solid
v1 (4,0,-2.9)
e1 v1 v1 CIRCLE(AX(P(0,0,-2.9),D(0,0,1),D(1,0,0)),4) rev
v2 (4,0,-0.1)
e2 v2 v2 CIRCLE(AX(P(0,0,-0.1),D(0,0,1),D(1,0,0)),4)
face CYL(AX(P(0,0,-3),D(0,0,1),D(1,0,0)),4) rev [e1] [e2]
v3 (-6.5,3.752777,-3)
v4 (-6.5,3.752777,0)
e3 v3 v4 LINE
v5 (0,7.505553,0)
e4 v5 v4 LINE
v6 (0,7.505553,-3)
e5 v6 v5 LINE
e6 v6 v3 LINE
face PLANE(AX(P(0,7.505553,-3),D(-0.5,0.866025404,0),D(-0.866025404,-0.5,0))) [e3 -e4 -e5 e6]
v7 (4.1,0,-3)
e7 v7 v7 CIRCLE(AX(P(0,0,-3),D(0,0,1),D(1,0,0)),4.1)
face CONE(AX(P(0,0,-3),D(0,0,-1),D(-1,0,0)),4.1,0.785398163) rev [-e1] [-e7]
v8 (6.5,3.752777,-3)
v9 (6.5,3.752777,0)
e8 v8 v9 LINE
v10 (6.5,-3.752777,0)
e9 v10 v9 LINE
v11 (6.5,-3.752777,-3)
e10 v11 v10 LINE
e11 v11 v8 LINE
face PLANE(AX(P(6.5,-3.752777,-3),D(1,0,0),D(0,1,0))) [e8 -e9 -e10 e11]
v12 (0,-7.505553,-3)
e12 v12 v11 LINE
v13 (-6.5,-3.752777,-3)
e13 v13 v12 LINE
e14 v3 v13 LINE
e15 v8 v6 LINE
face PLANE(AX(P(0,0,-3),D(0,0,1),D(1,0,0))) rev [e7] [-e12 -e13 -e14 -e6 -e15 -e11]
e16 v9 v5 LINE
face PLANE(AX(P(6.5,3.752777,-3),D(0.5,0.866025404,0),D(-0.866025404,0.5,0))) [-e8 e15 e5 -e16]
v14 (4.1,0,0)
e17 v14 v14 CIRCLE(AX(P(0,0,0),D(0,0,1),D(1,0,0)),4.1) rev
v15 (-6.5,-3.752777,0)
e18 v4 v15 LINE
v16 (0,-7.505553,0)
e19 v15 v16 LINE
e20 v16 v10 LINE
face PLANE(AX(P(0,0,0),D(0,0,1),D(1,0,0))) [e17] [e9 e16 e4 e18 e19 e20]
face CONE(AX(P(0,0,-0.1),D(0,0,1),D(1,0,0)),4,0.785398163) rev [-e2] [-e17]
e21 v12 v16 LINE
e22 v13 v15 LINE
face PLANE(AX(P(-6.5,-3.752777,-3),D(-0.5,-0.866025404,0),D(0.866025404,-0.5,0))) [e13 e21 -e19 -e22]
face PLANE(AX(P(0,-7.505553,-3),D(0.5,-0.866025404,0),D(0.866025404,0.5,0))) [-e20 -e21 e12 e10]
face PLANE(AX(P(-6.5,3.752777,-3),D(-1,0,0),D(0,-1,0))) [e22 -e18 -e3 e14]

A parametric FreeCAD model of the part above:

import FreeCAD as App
import Part
import Sketcher

V = App.Vector
Q = App.Units.Quantity


def edges_at(feature, points):
    """Names of the edges that pass closest to the given points."""
    edges = feature.Shape.Edges
    near = lambda p: min(range(len(edges)), key=lambda i: edges[i].distToShape(Part.Vertex(*p))[0])
    return sorted({f"Edge{near(p) + 1}" for p in points})


def add_polygon(sketch, points):
    """Adds a closed chain of lines whose ends are joined by coincident constraints."""
    first, n = sketch.GeometryCount, len(points)
    for a, b in zip(points, points[1:] + points[:1]):
        sketch.addGeometry(Part.LineSegment(App.Vector(*a, 0), App.Vector(*b, 0)), False)
    for i in range(n):
        sketch.addConstraint(Sketcher.Constraint("Coincident", first + i, 2, first + (i + 1) % n, 1))

doc = App.newDocument("Part")
body = doc.addObject("PartDesign::Body", "Body")

# Sketch on XY plane
sketch1 = body.newObject("Sketcher::SketchObject", "Sketch")
sketch1.AttachmentSupport = (doc.getObject("XY_Plane"), [""])
sketch1.MapMode = "FlatFace"
add_polygon(sketch1, [(0, 7.505553), (-6.5, 3.752777), (-6.5, -3.752777), (0, -7.505553), (6.5, -3.752777), (6.5, 3.752777)])  # lines 0-5
sketch1.addConstraint([
    Sketcher.Constraint("Vertical", 1),
    Sketcher.Constraint("Vertical", 4),
    Sketcher.Constraint("Symmetric", 0, 2, 3, 2, -1, 1),
    Sketcher.Constraint("Symmetric", 2, 2, 5, 2, -1, 1),
    Sketcher.Constraint("PointOnObject", 2, 2, -2),
    Sketcher.Constraint("Parallel", 2, 5),
    Sketcher.Constraint("Horizontal", 1, 2, 3, 2),
    Sketcher.Constraint("Angle", 0, Q("-150 deg")),
    Sketcher.Constraint("DistanceX", 1, 2, 3, 2, 13.0),
    Sketcher.Constraint("DistanceY", 1, 2, 1, 1, 7.505554),
])
pad1 = body.newObject("PartDesign::Pad", "Pad")
pad1.Profile = sketch1
pad1.Length = 3
pad1.Reversed = True

# Sketch on XY plane
sketch2 = body.newObject("Sketcher::SketchObject", "Sketch001")
sketch2.AttachmentSupport = (doc.getObject("XY_Plane"), [""])
sketch2.MapMode = "FlatFace"
sketch2.addGeometry(Part.Circle(V(0, 0, 0), V(0, 0, 1), 4), False)
sketch2.addConstraint([
    Sketcher.Constraint("Coincident", 0, 3, -1, 1),
    Sketcher.Constraint("Diameter", 0, 8.0),
])
pocket1 = body.newObject("PartDesign::Pocket", "Pocket")
pocket1.Profile = sketch2
pocket1.Length = 3
doc.recompute()

chamfer = body.newObject("PartDesign::Chamfer", "Chamfer")
chamfer.Base = (pocket1, edges_at(pocket1, [(-4, 0, -3), (-4, 0, 0)]))
chamfer.Size = 0.1

doc.recompute()
